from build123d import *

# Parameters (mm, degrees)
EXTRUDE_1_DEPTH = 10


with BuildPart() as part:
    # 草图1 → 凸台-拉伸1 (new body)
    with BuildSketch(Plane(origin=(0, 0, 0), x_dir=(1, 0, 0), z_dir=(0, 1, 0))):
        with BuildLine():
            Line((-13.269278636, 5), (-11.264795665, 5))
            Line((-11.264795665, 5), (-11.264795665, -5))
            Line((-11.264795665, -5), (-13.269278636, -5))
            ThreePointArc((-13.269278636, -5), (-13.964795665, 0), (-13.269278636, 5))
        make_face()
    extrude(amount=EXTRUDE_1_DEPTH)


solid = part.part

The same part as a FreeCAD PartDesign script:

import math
import FreeCAD as App
import Part
import Sketcher

V = App.Vector
Q = App.Units.Quantity

doc = App.newDocument("Part")
body = doc.addObject("PartDesign::Body", "Body")

# Sketch on XZ plane
sketch1 = body.newObject("Sketcher::SketchObject", "Sketch")
sketch1.AttachmentSupport = (doc.getObject("XZ_Plane"), [""])
sketch1.MapMode = "FlatFace"
sketch1.addGeometry(Part.LineSegment(V(-11.264796, -5, 0), V(-13.269279, -5, 0)), False)
sketch1.addGeometry(Part.ArcOfCircle(Part.Circle(V(4.355204, 0, 0), V(0, 0, 1), 18.32), math.radians(164.161559), math.radians(195.838441)), False)
sketch1.addGeometry(Part.LineSegment(V(-13.269279, 5, 0), V(-11.264796, 5, 0)), False)
sketch1.addGeometry(Part.LineSegment(V(-11.264796, 5, 0), V(-11.264796, -5, 0)), False)
sketch1.addConstraint(Sketcher.Constraint("Coincident", 0, 2, 1, 2))
sketch1.addConstraint(Sketcher.Constraint("Coincident", 1, 1, 2, 1))
sketch1.addConstraint(Sketcher.Constraint("Coincident", 2, 2, 3, 1))
sketch1.addConstraint(Sketcher.Constraint("Coincident", 3, 2, 0, 1))
sketch1.addConstraint(Sketcher.Constraint("Horizontal", 0))
sketch1.addConstraint(Sketcher.Constraint("Horizontal", 2))
sketch1.addConstraint(Sketcher.Constraint("Vertical", 3))
sketch1.addConstraint(Sketcher.Constraint("Symmetric", 0, 2, 1, 1, -1))
sketch1.addConstraint(Sketcher.Constraint("DistanceY", 3, 2, 3, 1, Q("10 mm")))
sketch1.addConstraint(Sketcher.Constraint("Radius", 1, Q("18.32 mm")))
sketch1.addConstraint(Sketcher.Constraint("DistanceX", 2, 2, 1, 3, Q("15.62 mm")))
sketch1.addConstraint(Sketcher.Constraint("DistanceX", 0, 2, -1, 1, Q("13.269279 mm")))
pad1 = body.newObject("PartDesign::Pad", "Pad")
pad1.Profile = sketch1
pad1.Length = 10
pad1.Reversed = True

doc.recompute()
